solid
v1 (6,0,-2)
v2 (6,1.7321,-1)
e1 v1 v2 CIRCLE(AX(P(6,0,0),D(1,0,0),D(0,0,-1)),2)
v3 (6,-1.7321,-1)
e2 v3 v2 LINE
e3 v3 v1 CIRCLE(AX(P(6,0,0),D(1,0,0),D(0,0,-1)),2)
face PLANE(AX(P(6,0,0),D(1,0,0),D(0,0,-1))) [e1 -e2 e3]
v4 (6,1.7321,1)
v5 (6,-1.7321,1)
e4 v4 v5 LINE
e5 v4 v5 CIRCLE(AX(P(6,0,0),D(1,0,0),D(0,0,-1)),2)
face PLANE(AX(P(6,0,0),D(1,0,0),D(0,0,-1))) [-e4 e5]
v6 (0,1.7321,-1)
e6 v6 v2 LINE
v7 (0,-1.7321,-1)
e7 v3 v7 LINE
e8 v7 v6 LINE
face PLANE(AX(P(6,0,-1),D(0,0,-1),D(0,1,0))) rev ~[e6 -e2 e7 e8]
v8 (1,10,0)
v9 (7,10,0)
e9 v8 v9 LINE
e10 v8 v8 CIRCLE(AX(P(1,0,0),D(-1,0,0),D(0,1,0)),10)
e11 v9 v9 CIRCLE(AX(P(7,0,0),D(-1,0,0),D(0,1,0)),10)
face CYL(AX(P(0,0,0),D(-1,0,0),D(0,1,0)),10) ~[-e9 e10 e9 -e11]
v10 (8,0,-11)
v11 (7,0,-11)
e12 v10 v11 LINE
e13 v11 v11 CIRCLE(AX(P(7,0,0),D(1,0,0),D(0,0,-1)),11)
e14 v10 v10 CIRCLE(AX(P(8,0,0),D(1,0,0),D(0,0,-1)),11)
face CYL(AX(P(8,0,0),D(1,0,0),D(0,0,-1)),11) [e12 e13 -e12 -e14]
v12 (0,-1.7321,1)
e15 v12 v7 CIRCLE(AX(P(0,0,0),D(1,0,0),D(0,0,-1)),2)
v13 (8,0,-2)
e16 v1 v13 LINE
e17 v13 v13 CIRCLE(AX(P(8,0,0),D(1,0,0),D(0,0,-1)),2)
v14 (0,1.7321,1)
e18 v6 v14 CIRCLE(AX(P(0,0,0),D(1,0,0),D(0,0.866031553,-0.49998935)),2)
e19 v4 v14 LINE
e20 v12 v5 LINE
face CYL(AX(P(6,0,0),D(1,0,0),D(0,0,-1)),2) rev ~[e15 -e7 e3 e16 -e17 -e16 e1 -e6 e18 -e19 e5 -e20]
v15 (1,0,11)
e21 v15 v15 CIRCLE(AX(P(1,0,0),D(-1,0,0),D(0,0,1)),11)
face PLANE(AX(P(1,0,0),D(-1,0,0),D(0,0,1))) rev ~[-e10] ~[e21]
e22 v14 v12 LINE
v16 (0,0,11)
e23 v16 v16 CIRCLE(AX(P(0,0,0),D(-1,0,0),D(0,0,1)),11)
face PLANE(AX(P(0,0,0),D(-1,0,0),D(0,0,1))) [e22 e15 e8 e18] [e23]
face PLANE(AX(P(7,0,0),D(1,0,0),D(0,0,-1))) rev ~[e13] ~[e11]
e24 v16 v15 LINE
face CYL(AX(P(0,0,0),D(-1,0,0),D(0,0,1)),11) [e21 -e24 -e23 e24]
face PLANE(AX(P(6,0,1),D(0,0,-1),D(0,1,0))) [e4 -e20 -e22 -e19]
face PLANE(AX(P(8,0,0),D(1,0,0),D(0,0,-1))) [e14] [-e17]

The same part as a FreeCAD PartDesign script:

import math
import FreeCAD as App
import Part
import Sketcher

V = App.Vector

doc = App.newDocument("Part")
body = doc.addObject("PartDesign::Body", "Body")

# Sketch on YZ plane
sketch1 = doc.addObject("Sketcher::SketchObject", "Sketch")
body.addObject(sketch1)
sketch1.AttachmentSupport = (doc.YZ_Plane, [""])
sketch1.MapMode = "FlatFace"
sketch1.addGeometry(Part.Circle(V(0, 0, 0), V(0, 0, 1), 10), False)
sketch1.addConstraint([
    Sketcher.Constraint("Coincident", 0, 3, -1, 1),
    Sketcher.Constraint("Diameter", 0, 20.0),
])
pad1 = doc.addObject("PartDesign::Pad", "Pad")
body.addObject(pad1)
pad1.Profile = sketch1
pad1.Length = 8

# Sketch on YZ plane
sketch2 = doc.addObject("Sketcher::SketchObject", "Sketch001")
body.addObject(sketch2)
sketch2.AttachmentSupport = (doc.YZ_Plane, [""])
sketch2.MapMode = "FlatFace"
sketch2.AttachmentOffset = App.Placement(V(0, 0, 8), App.Rotation())
sketch2.addGeometry(Part.Circle(V(0, 0, 0), V(0, 0, 1), 2), False)
sketch2.addConstraint([
    Sketcher.Constraint("Coincident", 0, 3, -1, 1),
    Sketcher.Constraint("Diameter", 0, 4.0),
])
pocket1 = doc.addObject("PartDesign::Pocket", "Pocket")
body.addObject(pocket1)
pocket1.Profile = sketch2
pocket1.Length = 2

# Sketch on YZ plane
sketch3 = doc.addObject("Sketcher::SketchObject", "Sketch002")
body.addObject(sketch3)
sketch3.AttachmentSupport = (doc.YZ_Plane, [""])
sketch3.MapMode = "FlatFace"
sketch3.AttachmentOffset = App.Placement(V(0, 0, 6), App.Rotation())
sketch3.addGeometry([
    Part.LineSegment(V(-1.7, -1, 0), V(1.7, -1, 0)),
    Part.ArcOfCircle(Part.Circle(V(0, 0, 0), V(0, 0, 1), 2), math.radians(-30), math.radians(30)),
    Part.LineSegment(V(1.7, 1, 0), V(-1.7, 1, 0)),
    Part.ArcOfCircle(Part.Circle(V(0, 0, 0), V(0, 0, 1), 2), math.radians(150), math.radians(210)),
], False)
sketch3.addConstraint([
    Sketcher.Constraint("Coincident", 0, 2, 1, 1),
    Sketcher.Constraint("Coincident", 1, 2, 2, 1),
    Sketcher.Constraint("Coincident", 2, 2, 3, 1),
    Sketcher.Constraint("Coincident", 3, 2, 0, 1),
    Sketcher.Constraint("Horizontal", 0),
    Sketcher.Constraint("Horizontal", 2),
    Sketcher.Constraint("Coincident", 1, 3, -1, 1),
    Sketcher.Constraint("Coincident", 3, 3, -1, 1),
    Sketcher.Constraint("Equal", 1, 3),
    Sketcher.Constraint("Vertical", 0, 2, 1, 2),
    Sketcher.Constraint("DistanceY", 0, 2, -1, 1, 1.0),
    Sketcher.Constraint("Radius", 1, 2.0),
])
pocket2 = doc.addObject("PartDesign::Pocket", "Pocket001")
body.addObject(pocket2)
pocket2.Profile = sketch3
pocket2.Type = "ThroughAll"

# Sketch on YZ plane
sketch4 = doc.addObject("Sketcher::SketchObject", "Sketch003")
body.addObject(sketch4)
sketch4.AttachmentSupport = (doc.YZ_Plane, [""])
sketch4.MapMode = "FlatFace"
sketch4.AttachmentOffset = App.Placement(V(0, 0, 8), App.Rotation())
sketch4.addGeometry([
    Part.Circle(V(0, 0, 0), V(0, 0, 1), 11),
    Part.Circle(V(0, 0, 0), V(0, 0, 1), 2),
], False)
sketch4.addConstraint([
    Sketcher.Constraint("Coincident", 0, 3, -1, 1),
    Sketcher.Constraint("Coincident", 1, 3, -1, 1),
    Sketcher.Constraint("Diameter", 0, 22.0),
    Sketcher.Constraint("Diameter", 1, 4.0),
])
pad2 = doc.addObject("PartDesign::Pad", "Pad001")
body.addObject(pad2)
pad2.Profile = sketch4
pad2.Length = 1
pad2.Reversed = True

# Sketch on YZ plane
sketch5 = doc.addObject("Sketcher::SketchObject", "Sketch004")
body.addObject(sketch5)
sketch5.AttachmentSupport = (doc.YZ_Plane, [""])
sketch5.MapMode = "FlatFace"
sketch5.addGeometry([
    Part.Circle(V(0, 0, 0), V(0, 0, 1), 11),
    Part.Circle(V(0, 0, 0), V(0, 0, 1), 2),
], False)
sketch5.addConstraint([
    Sketcher.Constraint("Coincident", 0, 3, -1, 1),
    Sketcher.Constraint("Coincident", 1, 3, -1, 1),
    Sketcher.Constraint("Diameter", 0, 22.0),
    Sketcher.Constraint("Diameter", 1, 4.0),
])
pad3 = doc.addObject("PartDesign::Pad", "Pad002")
body.addObject(pad3)
pad3.Profile = sketch5
pad3.Length = 1

doc.recompute()
